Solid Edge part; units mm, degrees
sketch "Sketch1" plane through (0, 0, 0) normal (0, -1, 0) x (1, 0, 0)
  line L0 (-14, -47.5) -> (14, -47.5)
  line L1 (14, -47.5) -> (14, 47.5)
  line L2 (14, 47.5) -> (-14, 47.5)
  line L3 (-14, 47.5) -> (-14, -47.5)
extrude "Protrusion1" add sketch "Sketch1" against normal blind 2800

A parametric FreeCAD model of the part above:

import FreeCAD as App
import Part
import Sketcher

V = App.Vector

doc = App.newDocument("Part")
params = doc.addObject("Spreadsheet::Sheet", "Params")
for row, (alias, value) in enumerate([
    ("sketch1_width", "28 mm"),
    ("sketch1_height", "95 mm"),
    ("pad1_length", "2800 mm"),
], start=1):
    params.set(f"A{row}", alias)
    params.set(f"B{row}", "=" + value)
    params.setAlias(f"B{row}", alias)

body = doc.addObject("PartDesign::Body", "Body")

# Sketch on XZ plane
sketch1 = body.newObject("Sketcher::SketchObject", "Sketch")
sketch1.AttachmentSupport = (doc.getObject("XZ_Plane"), [""])
sketch1.MapMode = "FlatFace"
sketch1.addGeometry(Part.LineSegment(V(-14, 48, 0), V(-14, -48, 0)), False)
sketch1.addGeometry(Part.LineSegment(V(-14, -48, 0), V(14, -48, 0)), False)
sketch1.addGeometry(Part.LineSegment(V(14, -48, 0), V(14, 48, 0)), False)
sketch1.addGeometry(Part.LineSegment(V(14, 48, 0), V(-14, 48, 0)), False)
sketch1.addConstraint(Sketcher.Constraint("Coincident", 0, 2, 1, 1))
sketch1.addConstraint(Sketcher.Constraint("Coincident", 1, 2, 2, 1))
sketch1.addConstraint(Sketcher.Constraint("Coincident", 2, 2, 3, 1))
sketch1.addConstraint(Sketcher.Constraint("Coincident", 3, 2, 0, 1))
sketch1.addConstraint(Sketcher.Constraint("Vertical", 0))
sketch1.addConstraint(Sketcher.Constraint("Horizontal", 1))
sketch1.addConstraint(Sketcher.Constraint("Vertical", 2))
sketch1.addConstraint(Sketcher.Constraint("Horizontal", 3))
sketch1.addConstraint(Sketcher.Constraint("Symmetric", 0, 2, 2, 2, -1, 1))
sketch1.addConstraint(Sketcher.Constraint("DistanceX", 1, 1, 1, 2, 28.0))
sketch1.addConstraint(Sketcher.Constraint("DistanceY", 0, 2, 0, 1, 95.0))
sketch1.setExpression("Constraints[9]", "Params.sketch1_width")
sketch1.setExpression("Constraints[10]", "Params.sketch1_height")
pad1 = body.newObject("PartDesign::Pad", "Pad")
pad1.Profile = sketch1
pad1.setExpression("Length", "Params.pad1_length")
pad1.Reversed = True

doc.recompute()
